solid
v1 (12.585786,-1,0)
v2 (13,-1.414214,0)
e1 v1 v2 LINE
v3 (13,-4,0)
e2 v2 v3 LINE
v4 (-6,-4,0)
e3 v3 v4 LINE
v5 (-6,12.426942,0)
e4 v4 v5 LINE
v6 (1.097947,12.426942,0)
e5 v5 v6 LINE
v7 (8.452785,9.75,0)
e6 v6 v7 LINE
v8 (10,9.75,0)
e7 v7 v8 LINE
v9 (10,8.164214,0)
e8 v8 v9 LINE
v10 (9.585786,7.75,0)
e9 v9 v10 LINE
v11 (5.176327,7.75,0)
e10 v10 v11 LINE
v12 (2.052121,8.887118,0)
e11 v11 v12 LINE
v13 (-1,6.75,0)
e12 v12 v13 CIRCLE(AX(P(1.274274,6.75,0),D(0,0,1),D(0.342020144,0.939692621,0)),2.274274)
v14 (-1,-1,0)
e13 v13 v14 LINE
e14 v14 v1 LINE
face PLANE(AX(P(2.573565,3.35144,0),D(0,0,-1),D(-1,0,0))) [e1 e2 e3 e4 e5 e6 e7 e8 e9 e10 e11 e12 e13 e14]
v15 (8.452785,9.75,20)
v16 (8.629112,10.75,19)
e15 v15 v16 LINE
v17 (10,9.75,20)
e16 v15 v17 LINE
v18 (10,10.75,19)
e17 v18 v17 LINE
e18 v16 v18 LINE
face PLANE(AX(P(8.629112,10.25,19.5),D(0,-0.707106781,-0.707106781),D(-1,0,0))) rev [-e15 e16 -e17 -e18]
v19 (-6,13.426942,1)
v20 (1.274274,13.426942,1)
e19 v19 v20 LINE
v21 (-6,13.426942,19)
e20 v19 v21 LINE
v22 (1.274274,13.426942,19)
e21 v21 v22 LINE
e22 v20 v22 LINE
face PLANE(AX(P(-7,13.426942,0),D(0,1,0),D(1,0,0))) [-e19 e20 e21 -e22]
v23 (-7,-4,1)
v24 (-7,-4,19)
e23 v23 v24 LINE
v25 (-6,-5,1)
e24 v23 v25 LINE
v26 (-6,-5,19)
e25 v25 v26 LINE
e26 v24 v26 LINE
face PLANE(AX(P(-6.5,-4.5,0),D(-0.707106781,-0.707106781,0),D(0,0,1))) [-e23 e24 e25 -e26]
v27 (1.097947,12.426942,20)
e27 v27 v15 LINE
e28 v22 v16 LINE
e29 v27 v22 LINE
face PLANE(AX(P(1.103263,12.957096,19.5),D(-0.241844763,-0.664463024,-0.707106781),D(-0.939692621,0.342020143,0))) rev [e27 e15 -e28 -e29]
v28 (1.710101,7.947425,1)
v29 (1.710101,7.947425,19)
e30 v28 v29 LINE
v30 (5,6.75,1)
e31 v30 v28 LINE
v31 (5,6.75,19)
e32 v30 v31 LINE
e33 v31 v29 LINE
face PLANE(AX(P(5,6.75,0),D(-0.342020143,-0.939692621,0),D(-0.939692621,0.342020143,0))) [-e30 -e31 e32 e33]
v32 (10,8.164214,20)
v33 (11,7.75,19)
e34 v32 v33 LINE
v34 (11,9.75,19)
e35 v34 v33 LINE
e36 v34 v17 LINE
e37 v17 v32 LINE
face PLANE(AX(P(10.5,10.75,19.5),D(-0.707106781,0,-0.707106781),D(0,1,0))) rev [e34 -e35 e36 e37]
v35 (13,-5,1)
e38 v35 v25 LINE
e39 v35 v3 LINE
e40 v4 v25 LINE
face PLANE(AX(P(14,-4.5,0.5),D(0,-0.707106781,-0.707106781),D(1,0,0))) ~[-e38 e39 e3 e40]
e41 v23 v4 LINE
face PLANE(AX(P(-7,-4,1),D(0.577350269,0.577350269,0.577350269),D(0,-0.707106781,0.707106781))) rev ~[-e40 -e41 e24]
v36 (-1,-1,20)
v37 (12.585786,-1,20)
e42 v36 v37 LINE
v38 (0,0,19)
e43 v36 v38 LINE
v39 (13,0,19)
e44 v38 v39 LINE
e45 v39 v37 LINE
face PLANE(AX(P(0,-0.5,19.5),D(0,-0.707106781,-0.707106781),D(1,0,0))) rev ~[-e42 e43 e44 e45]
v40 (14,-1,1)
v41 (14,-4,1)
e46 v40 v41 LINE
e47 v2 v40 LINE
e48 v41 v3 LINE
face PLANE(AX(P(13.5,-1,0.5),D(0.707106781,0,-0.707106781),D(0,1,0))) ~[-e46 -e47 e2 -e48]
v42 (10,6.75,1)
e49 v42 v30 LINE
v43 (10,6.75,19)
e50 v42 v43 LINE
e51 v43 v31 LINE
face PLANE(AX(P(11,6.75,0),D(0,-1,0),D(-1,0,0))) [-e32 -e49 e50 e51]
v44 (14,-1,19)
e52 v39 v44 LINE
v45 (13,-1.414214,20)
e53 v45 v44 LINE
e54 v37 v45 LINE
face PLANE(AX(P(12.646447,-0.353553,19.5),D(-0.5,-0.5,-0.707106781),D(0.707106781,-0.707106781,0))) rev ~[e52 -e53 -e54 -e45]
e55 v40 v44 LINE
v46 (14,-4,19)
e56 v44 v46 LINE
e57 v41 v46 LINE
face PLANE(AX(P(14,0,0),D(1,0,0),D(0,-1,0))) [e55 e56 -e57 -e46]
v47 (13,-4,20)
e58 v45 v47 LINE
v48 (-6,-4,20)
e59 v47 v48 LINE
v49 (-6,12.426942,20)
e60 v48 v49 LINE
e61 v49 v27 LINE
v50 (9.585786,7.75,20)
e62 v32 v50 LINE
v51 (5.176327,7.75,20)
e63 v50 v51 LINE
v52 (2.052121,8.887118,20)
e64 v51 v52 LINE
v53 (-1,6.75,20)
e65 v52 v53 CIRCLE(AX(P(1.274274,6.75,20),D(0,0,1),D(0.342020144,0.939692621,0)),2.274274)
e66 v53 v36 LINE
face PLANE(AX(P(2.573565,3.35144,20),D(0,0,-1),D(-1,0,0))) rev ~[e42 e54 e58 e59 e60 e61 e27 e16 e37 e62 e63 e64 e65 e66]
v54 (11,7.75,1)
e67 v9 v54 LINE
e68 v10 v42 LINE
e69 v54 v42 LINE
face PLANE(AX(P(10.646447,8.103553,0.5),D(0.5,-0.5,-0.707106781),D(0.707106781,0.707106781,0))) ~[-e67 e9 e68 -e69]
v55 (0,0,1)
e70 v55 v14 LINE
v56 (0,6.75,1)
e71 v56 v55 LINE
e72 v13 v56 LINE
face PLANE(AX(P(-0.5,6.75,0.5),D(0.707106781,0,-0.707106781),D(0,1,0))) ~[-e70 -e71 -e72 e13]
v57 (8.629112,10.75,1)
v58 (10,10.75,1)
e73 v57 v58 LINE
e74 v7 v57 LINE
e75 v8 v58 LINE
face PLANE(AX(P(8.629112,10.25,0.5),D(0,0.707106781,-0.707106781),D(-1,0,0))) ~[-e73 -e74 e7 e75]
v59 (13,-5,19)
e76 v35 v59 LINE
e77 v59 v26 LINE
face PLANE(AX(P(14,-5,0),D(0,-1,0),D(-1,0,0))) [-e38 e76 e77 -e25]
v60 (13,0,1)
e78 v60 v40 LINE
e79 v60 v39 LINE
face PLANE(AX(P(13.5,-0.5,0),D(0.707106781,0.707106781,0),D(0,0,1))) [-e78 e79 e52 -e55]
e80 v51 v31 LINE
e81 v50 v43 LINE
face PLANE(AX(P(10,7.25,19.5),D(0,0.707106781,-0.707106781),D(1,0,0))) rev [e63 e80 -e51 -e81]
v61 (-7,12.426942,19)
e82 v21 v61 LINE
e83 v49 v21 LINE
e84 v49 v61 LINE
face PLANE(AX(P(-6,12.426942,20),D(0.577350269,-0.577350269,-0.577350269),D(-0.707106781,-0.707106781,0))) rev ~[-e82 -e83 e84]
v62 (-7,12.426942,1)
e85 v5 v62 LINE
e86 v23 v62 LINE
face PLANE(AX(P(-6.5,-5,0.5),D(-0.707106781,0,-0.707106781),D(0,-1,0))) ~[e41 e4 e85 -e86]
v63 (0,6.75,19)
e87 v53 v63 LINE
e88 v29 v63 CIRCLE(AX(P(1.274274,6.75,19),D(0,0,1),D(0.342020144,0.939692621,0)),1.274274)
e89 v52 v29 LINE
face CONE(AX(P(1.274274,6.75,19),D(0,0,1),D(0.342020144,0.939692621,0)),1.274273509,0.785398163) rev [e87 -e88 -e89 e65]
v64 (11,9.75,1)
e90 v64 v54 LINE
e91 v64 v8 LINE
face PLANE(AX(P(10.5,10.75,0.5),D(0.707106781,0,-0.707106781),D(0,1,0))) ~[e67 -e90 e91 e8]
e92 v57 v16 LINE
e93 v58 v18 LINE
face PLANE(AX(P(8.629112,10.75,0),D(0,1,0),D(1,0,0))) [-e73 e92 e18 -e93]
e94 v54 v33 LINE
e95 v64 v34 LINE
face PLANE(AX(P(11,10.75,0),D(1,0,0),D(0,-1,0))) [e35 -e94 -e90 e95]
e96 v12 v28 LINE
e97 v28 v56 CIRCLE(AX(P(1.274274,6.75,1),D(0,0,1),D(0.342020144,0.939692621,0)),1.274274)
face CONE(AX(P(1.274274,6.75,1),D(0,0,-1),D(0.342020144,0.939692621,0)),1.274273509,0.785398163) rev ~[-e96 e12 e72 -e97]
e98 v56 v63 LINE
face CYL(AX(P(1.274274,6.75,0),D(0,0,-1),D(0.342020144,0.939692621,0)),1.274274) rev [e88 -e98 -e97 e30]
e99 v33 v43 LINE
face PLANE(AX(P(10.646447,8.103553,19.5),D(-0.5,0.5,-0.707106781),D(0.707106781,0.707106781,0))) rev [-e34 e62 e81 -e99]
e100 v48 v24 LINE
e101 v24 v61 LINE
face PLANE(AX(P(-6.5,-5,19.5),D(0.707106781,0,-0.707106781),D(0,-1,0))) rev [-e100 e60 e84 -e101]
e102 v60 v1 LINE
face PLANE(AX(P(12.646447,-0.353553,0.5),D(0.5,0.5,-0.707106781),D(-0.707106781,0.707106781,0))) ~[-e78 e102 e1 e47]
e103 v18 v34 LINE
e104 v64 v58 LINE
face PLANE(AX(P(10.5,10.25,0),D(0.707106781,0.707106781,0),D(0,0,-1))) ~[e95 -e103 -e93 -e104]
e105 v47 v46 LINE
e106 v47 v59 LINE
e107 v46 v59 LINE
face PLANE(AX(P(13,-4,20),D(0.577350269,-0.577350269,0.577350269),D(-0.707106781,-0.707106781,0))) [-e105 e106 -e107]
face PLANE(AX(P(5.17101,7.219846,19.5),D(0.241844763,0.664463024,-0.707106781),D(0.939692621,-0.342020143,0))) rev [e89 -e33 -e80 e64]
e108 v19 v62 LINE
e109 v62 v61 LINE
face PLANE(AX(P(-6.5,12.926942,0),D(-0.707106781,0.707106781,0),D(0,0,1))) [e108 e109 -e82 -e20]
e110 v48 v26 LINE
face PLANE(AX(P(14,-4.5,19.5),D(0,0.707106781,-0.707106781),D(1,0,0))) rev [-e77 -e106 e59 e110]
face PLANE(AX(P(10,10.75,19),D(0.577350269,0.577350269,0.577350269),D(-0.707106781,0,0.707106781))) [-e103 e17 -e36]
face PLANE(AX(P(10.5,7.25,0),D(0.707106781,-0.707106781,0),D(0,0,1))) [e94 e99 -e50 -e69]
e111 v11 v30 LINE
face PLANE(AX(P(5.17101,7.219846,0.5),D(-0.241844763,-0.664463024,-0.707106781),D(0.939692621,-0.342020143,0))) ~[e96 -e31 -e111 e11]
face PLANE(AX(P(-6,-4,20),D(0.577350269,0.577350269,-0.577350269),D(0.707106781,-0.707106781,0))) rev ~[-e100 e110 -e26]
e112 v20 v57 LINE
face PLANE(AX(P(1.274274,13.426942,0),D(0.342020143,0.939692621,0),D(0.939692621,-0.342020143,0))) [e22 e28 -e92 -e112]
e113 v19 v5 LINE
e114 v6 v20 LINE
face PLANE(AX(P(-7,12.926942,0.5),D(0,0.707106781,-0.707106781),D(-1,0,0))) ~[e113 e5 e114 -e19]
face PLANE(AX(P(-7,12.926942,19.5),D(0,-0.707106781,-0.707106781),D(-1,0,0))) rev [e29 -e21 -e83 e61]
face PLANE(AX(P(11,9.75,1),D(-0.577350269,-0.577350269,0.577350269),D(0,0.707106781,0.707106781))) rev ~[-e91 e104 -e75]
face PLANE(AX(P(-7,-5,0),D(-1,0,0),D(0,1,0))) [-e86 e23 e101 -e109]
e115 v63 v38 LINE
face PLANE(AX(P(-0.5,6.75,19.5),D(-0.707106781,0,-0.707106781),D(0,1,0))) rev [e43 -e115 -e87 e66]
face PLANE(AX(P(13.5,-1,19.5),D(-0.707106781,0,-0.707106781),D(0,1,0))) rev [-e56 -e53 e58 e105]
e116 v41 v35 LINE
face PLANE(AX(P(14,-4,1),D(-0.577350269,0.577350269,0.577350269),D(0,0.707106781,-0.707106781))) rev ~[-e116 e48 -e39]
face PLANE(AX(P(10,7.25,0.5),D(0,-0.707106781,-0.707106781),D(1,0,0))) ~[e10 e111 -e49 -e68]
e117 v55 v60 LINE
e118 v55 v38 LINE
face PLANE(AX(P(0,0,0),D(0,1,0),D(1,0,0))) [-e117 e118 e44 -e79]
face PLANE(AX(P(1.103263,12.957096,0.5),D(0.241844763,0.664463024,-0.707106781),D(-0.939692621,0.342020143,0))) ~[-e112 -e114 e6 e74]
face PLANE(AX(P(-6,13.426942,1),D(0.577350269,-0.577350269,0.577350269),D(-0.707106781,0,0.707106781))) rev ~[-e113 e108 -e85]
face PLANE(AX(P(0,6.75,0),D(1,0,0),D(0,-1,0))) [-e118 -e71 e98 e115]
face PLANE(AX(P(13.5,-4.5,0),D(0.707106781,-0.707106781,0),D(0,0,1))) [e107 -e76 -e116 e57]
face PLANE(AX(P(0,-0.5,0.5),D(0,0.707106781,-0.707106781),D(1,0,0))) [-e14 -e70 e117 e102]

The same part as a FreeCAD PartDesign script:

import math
import FreeCAD as App
import Part
import Sketcher

V = App.Vector
Q = App.Units.Quantity


def edges_at(feature, points):
    """Names of the edges that pass closest to the given points."""
    edges = feature.Shape.Edges
    near = lambda p: min(range(len(edges)), key=lambda i: edges[i].distToShape(Part.Vertex(*p))[0])
    return sorted({f"Edge{near(p) + 1}" for p in points})

doc = App.newDocument("Part")
body = doc.addObject("PartDesign::Body", "Body")

sketch1 = body.newObject("Sketcher::SketchObject", "Sketch")
sketch1.AttachmentSupport = (doc.getObject("XY_Plane"), [""])
sketch1.MapMode = "FlatFace"
sketch1.addGeometry(Part.LineSegment(V(0, 0, 0), V(0, 6.75, 0)), False)
sketch1.addGeometry(Part.ArcOfCircle(Part.Circle(V(1.274274, 6.75, 0), V(0, 0, 1), 1.274274), math.radians(70), math.radians(180)), False)
sketch1.addGeometry(Part.LineSegment(V(1.710101, 7.947425, 0), V(5, 6.75, 0)), False)
sketch1.addGeometry(Part.LineSegment(V(5, 6.75, 0), V(11, 6.75, 0)), False)
sketch1.addGeometry(Part.LineSegment(V(11, 6.75, 0), V(11, 10.75, 0)), False)
sketch1.addGeometry(Part.LineSegment(V(11, 10.75, 0), V(8.629112, 10.75, 0)), False)
sketch1.addGeometry(Part.LineSegment(V(8.629112, 10.75, 0), V(1.274274, 13.426942, 0)), False)
sketch1.addGeometry(Part.LineSegment(V(1.274274, 13.426942, 0), V(-7, 13.426942, 0)), False)
sketch1.addGeometry(Part.LineSegment(V(-7, 13.426942, 0), V(-7, -5, 0)), False)
sketch1.addGeometry(Part.LineSegment(V(-7, -5, 0), V(14, -5, 0)), False)
sketch1.addGeometry(Part.LineSegment(V(14, -5, 0), V(14, 0, 0)), False)
sketch1.addGeometry(Part.LineSegment(V(14, 0, 0), V(0, 0, 0)), False)
sketch1.addConstraint(Sketcher.Constraint("Tangent", 0, 2, 1, 2))
sketch1.addConstraint(Sketcher.Constraint("Tangent", 1, 1, 2, 1))
sketch1.addConstraint(Sketcher.Constraint("Coincident", 2, 2, 3, 1))
sketch1.addConstraint(Sketcher.Constraint("Coincident", 3, 2, 4, 1))
sketch1.addConstraint(Sketcher.Constraint("Coincident", 4, 2, 5, 1))
sketch1.addConstraint(Sketcher.Constraint("Coincident", 5, 2, 6, 1))
sketch1.addConstraint(Sketcher.Constraint("Coincident", 6, 2, 7, 1))
sketch1.addConstraint(Sketcher.Constraint("Coincident", 7, 2, 8, 1))
sketch1.addConstraint(Sketcher.Constraint("Coincident", 8, 2, 9, 1))
sketch1.addConstraint(Sketcher.Constraint("Coincident", 9, 2, 10, 1))
sketch1.addConstraint(Sketcher.Constraint("Coincident", 10, 2, 11, 1))
sketch1.addConstraint(Sketcher.Constraint("Coincident", 11, 2, 0, 1))
sketch1.addConstraint(Sketcher.Constraint("Vertical", 0))
sketch1.addConstraint(Sketcher.Constraint("Horizontal", 3))
sketch1.addConstraint(Sketcher.Constraint("Vertical", 4))
sketch1.addConstraint(Sketcher.Constraint("Horizontal", 5))
sketch1.addConstraint(Sketcher.Constraint("Horizontal", 7))
sketch1.addConstraint(Sketcher.Constraint("Vertical", 8))
sketch1.addConstraint(Sketcher.Constraint("Horizontal", 9))
sketch1.addConstraint(Sketcher.Constraint("Vertical", 10))
sketch1.addConstraint(Sketcher.Constraint("Horizontal", 11))
sketch1.addConstraint(Sketcher.Constraint("Coincident", 11, 2, -1, 1))
sketch1.addConstraint(Sketcher.Constraint("Parallel", 2, 6))
sketch1.addConstraint(Sketcher.Constraint("Horizontal", 0, 2, 2, 2))
sketch1.addConstraint(Sketcher.Constraint("Vertical", 1, 3, 6, 2))
sketch1.addConstraint(Sketcher.Constraint("DistanceX", 3, 1, 3, 2, 6.0))
sketch1.addConstraint(Sketcher.Constraint("DistanceX", 9, 1, 9, 2, 21.0))
sketch1.addConstraint(Sketcher.Constraint("DistanceX", 11, 2, 11, 1, 14.0))
sketch1.addConstraint(Sketcher.Constraint("DistanceY", 4, 1, 4, 2, 4.0))
sketch1.addConstraint(Sketcher.Constraint("DistanceY", 10, 1, 10, 2, 5.0))
sketch1.addConstraint(Sketcher.Constraint("Angle", 2, Q("-20 deg")))
sketch1.addConstraint(Sketcher.Constraint("DistanceX", -1, 1, 2, 2, 5.0))
sketch1.addConstraint(Sketcher.Constraint("DistanceY", 0, 1, 0, 2, 6.75))
sketch1.addConstraint(Sketcher.Constraint("DistanceX", 5, 2, 5, 1, 2.370888))
pad1 = body.newObject("PartDesign::Pad", "Pad")
pad1.Profile = sketch1
pad1.Length = 20
doc.recompute()

chamfer = body.newObject("PartDesign::Chamfer", "Chamfer")
chamfer.Base = (pad1, edges_at(pad1, [(14, 0, 10), (11, 6.75, 10)]))
chamfer.Size = 1
doc.recompute()

chamfer2 = body.newObject("PartDesign::Chamfer", "Chamfer001")
chamfer2.Base = (chamfer, edges_at(chamfer, [
    (6.5, 0, 0),
    (3.355, 7.349, 20),
    (3.5, -5, 0),
    (-7, 4.213, 0),
    (-2.863, 13.427, 0),
    (4.952, 12.088, 0),
    (9.815, 10.75, 0),
    (11, 9.25, 0),
    (3.355, 7.349, 0),
    (0.543, 7.794, 0),
    (0, 3.375, 0),
    (11, 9.25, 20),
    (14, -5, 10),
    (-7, -5, 10),
    (-7, 13.427, 10),
    (11, 10.75, 10),
    (9.815, 10.75, 20),
    (4.952, 12.088, 20),
    (-2.863, 13.427, 20),
    (-7, 4.213, 20),
    (14, -3, 0),
    (7.5, 6.75, 0),
    (10.5, 7.25, 0),
    (13.5, -0.5, 0),
    (14, -3, 20),
    (7.5, 6.75, 20),
    (10.5, 7.25, 20),
    (3.5, -5, 20),
    (13.5, -0.5, 20),
    (6.5, 0, 20),
    (0, 3.375, 20),
    (0.543, 7.794, 20),
]))
chamfer2.Size = 1

doc.recompute()
